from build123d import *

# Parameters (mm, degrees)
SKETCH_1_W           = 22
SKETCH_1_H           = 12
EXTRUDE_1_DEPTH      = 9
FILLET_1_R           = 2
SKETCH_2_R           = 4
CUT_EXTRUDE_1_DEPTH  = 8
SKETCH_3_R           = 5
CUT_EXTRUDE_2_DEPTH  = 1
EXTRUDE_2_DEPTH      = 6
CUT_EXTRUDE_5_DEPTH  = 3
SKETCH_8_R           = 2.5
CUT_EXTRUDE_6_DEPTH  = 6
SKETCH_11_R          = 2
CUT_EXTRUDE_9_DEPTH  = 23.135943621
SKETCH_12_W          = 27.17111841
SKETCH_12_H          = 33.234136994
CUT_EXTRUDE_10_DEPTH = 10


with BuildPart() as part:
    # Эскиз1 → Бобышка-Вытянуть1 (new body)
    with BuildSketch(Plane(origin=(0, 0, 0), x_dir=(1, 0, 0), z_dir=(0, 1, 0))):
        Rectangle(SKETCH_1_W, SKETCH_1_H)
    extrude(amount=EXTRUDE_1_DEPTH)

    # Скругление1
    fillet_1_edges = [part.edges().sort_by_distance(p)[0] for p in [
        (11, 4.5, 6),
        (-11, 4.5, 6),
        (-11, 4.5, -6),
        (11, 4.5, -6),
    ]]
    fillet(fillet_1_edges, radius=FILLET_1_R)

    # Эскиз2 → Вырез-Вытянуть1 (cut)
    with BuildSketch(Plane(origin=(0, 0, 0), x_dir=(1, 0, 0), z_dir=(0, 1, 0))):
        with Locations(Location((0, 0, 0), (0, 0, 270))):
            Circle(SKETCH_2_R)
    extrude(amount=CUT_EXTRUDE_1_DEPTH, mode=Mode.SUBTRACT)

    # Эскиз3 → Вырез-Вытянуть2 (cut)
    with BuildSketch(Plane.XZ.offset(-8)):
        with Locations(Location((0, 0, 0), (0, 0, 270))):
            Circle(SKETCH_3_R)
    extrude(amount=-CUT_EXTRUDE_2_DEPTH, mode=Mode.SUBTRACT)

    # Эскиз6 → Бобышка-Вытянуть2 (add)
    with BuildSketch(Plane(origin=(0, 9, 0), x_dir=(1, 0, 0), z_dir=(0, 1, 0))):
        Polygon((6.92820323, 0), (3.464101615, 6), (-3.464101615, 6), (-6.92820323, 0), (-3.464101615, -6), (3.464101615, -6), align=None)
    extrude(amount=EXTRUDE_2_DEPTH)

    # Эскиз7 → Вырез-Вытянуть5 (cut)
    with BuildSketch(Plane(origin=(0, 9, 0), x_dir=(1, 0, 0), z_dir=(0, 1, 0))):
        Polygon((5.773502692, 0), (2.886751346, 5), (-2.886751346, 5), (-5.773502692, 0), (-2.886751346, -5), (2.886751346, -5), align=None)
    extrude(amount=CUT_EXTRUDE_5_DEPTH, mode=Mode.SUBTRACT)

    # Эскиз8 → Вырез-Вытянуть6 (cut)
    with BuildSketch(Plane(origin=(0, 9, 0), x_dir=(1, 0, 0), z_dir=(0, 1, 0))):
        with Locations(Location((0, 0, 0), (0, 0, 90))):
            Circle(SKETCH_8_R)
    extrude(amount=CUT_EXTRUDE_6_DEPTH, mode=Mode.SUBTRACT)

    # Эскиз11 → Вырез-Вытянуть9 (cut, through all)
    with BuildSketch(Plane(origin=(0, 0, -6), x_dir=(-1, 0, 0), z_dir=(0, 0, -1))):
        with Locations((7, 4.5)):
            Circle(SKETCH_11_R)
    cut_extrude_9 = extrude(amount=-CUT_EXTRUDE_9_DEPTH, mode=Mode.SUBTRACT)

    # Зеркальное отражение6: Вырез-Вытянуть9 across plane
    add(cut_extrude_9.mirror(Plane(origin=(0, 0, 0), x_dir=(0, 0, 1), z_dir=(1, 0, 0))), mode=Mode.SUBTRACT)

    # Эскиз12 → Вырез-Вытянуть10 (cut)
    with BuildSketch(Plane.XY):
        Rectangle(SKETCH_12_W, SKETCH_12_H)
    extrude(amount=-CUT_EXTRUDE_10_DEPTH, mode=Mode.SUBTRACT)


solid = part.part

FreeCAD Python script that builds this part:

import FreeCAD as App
import Part
import Sketcher
from FreeCAD import Vector
Q = App.Units.Quantity


def edges_at(feature, points):
    """Names of the edges that pass closest to the given points."""
    edges = feature.Shape.Edges
    near = lambda p: min(range(len(edges)), key=lambda i: edges[i].distToShape(Part.Vertex(*p))[0])
    return sorted({f"Edge{near(p) + 1}" for p in points})

doc = App.newDocument("Part")
body = doc.addObject("PartDesign::Body", "Body")

# Sketch on XZ plane
sketch1 = body.newObject("Sketcher::SketchObject", "Sketch")
sketch1.AttachmentSupport = (doc.getObject("XZ_Plane"), [""])
sketch1.MapMode = "FlatFace"
sketch1.addGeometry([
    Part.LineSegment(Vector(-11, -6, 0), Vector(-11, 6, 0)),
    Part.LineSegment(Vector(-11, 6, 0), Vector(11, 6, 0)),
    Part.LineSegment(Vector(11, 6, 0), Vector(11, -6, 0)),
    Part.LineSegment(Vector(11, -6, 0), Vector(-11, -6, 0)),
], False)
sketch1.addConstraint([
    Sketcher.Constraint("Coincident", 0, 2, 1, 1),
    Sketcher.Constraint("Coincident", 1, 2, 2, 1),
    Sketcher.Constraint("Coincident", 2, 2, 3, 1),
    Sketcher.Constraint("Coincident", 3, 2, 0, 1),
    Sketcher.Constraint("Vertical", 0),
    Sketcher.Constraint("Horizontal", 1),
    Sketcher.Constraint("Vertical", 2),
    Sketcher.Constraint("Horizontal", 3),
    Sketcher.Constraint("Symmetric", 0, 2, 2, 2, -1, 1),
    Sketcher.Constraint("DistanceX", 1, 1, 1, 2, Q("22 mm")),
    Sketcher.Constraint("DistanceY", 0, 1, 0, 2, Q("12 mm")),
])
pad1 = body.newObject("PartDesign::Pad", "Pad")
pad1.Profile = sketch1
pad1.Length = 9
pad1.Reversed = True
doc.recompute()

fillet = body.newObject("PartDesign::Fillet", "Fillet")
fillet.Base = (pad1, edges_at(pad1, [
    (11, 4.5, 6),
    (-11, 4.5, 6),
    (-11, 4.5, -6),
    (11, 4.5, -6),
]))
fillet.Radius = 2

# Sketch on XZ plane
sketch2 = body.newObject("Sketcher::SketchObject", "Sketch001")
sketch2.AttachmentSupport = (doc.getObject("XZ_Plane"), [""])
sketch2.MapMode = "FlatFace"
sketch2.addGeometry(Part.Circle(Vector(0, 0, 0), Vector(0, 0, 1), 4), False)
sketch2.addConstraint([
    Sketcher.Constraint("Coincident", 0, 3, -1, 1),
    Sketcher.Constraint("Diameter", 0, Q("8 mm")),
])
pocket1 = body.newObject("PartDesign::Pocket", "Pocket")
pocket1.Profile = sketch2
pocket1.Length = 8

# Sketch on XZ plane
sketch3 = body.newObject("Sketcher::SketchObject", "Sketch002")
sketch3.AttachmentSupport = (doc.getObject("XZ_Plane"), [""])
sketch3.MapMode = "FlatFace"
sketch3.AttachmentOffset = App.Placement(Vector(0, 0, -8), App.Rotation())
sketch3.addGeometry(Part.Circle(Vector(0, 0, 0), Vector(0, 0, 1), 5), False)
sketch3.addConstraint([
    Sketcher.Constraint("Coincident", 0, 3, -1, 1),
    Sketcher.Constraint("Diameter", 0, Q("10 mm")),
])
pocket2 = body.newObject("PartDesign::Pocket", "Pocket001")
pocket2.Profile = sketch3
pocket2.Length = 1

# Sketch on XZ plane
sketch4 = body.newObject("Sketcher::SketchObject", "Sketch003")
sketch4.AttachmentSupport = (doc.getObject("XZ_Plane"), [""])
sketch4.MapMode = "FlatFace"
sketch4.AttachmentOffset = App.Placement(Vector(0, 0, -9), App.Rotation())
sketch4.addGeometry([
    Part.LineSegment(Vector(7, 0, 0), Vector(3, -6, 0)),  # 0
    Part.LineSegment(Vector(3, -6, 0), Vector(-3, -6, 0)),  # 1
    Part.LineSegment(Vector(-3, -6, 0), Vector(-7, 0, 0)),  # 2
    Part.LineSegment(Vector(-7, 0, 0), Vector(-3, 6, 0)),  # 3
    Part.LineSegment(Vector(-3, 6, 0), Vector(3, 6, 0)),  # 4
    Part.LineSegment(Vector(3, 6, 0), Vector(7, 0, 0)),  # 5
], False)
sketch4.addConstraint([
    Sketcher.Constraint("Coincident", 0, 2, 1, 1),
    Sketcher.Constraint("Coincident", 1, 2, 2, 1),
    Sketcher.Constraint("Coincident", 2, 2, 3, 1),
    Sketcher.Constraint("Coincident", 3, 2, 4, 1),
    Sketcher.Constraint("Coincident", 4, 2, 5, 1),
    Sketcher.Constraint("Coincident", 5, 2, 0, 1),
    Sketcher.Constraint("Horizontal", 1),
    Sketcher.Constraint("Horizontal", 4),
    Sketcher.Constraint("Symmetric", 0, 2, 3, 2, -1, 1),
    Sketcher.Constraint("Symmetric", 2, 2, 5, 2, -1, 1),
    Sketcher.Constraint("PointOnObject", 2, 2, -1),
    Sketcher.Constraint("Parallel", 2, 5),
    Sketcher.Constraint("Vertical", 1, 2, 3, 2),
    Sketcher.Constraint("Angle", 0, Q("-120 deg")),
    Sketcher.Constraint("DistanceY", 0, 2, -1, 1, Q("6 mm")),
    Sketcher.Constraint("DistanceX", -1, 1, 0, 2, Q("3.464102 mm")),
])
pad2 = body.newObject("PartDesign::Pad", "Pad001")
pad2.Profile = sketch4
pad2.Length = 6
pad2.Reversed = True

# Sketch on XZ plane
sketch5 = body.newObject("Sketcher::SketchObject", "Sketch004")
sketch5.AttachmentSupport = (doc.getObject("XZ_Plane"), [""])
sketch5.MapMode = "FlatFace"
sketch5.AttachmentOffset = App.Placement(Vector(0, 0, -9), App.Rotation())
sketch5.addGeometry([
    Part.LineSegment(Vector(6, 0, 0), Vector(3, -5, 0)),  # 0
    Part.LineSegment(Vector(3, -5, 0), Vector(-3, -5, 0)),  # 1
    Part.LineSegment(Vector(-3, -5, 0), Vector(-6, 0, 0)),  # 2
    Part.LineSegment(Vector(-6, 0, 0), Vector(-3, 5, 0)),  # 3
    Part.LineSegment(Vector(-3, 5, 0), Vector(3, 5, 0)),  # 4
    Part.LineSegment(Vector(3, 5, 0), Vector(6, 0, 0)),  # 5
], False)
sketch5.addConstraint([
    Sketcher.Constraint("Coincident", 0, 2, 1, 1),
    Sketcher.Constraint("Coincident", 1, 2, 2, 1),
    Sketcher.Constraint("Coincident", 2, 2, 3, 1),
    Sketcher.Constraint("Coincident", 3, 2, 4, 1),
    Sketcher.Constraint("Coincident", 4, 2, 5, 1),
    Sketcher.Constraint("Coincident", 5, 2, 0, 1),
    Sketcher.Constraint("Horizontal", 1),
    Sketcher.Constraint("Horizontal", 4),
    Sketcher.Constraint("Symmetric", 0, 2, 3, 2, -1, 1),
    Sketcher.Constraint("Symmetric", 2, 2, 5, 2, -1, 1),
    Sketcher.Constraint("PointOnObject", 2, 2, -1),
    Sketcher.Constraint("Parallel", 2, 5),
    Sketcher.Constraint("Vertical", 1, 2, 3, 2),
    Sketcher.Constraint("Angle", 0, Q("-120 deg")),
    Sketcher.Constraint("DistanceY", 0, 2, -1, 1, Q("5 mm")),
    Sketcher.Constraint("DistanceX", 1, 2, 1, 1, Q("5.773503 mm")),
])
pocket3 = body.newObject("PartDesign::Pocket", "Pocket002")
pocket3.Profile = sketch5
pocket3.Length = 3

# Sketch on XZ plane
sketch6 = body.newObject("Sketcher::SketchObject", "Sketch005")
sketch6.AttachmentSupport = (doc.getObject("XZ_Plane"), [""])
sketch6.MapMode = "FlatFace"
sketch6.AttachmentOffset = App.Placement(Vector(0, 0, -9), App.Rotation())
sketch6.addGeometry(Part.Circle(Vector(0, 0, 0), Vector(0, 0, 1), 2.5), False)
sketch6.addConstraint([
    Sketcher.Constraint("Coincident", 0, 3, -1, 1),
    Sketcher.Constraint("Diameter", 0, Q("5 mm")),
])
pocket4 = body.newObject("PartDesign::Pocket", "Pocket003")
pocket4.Profile = sketch6
pocket4.Length = 6

# Sketch on XY plane
sketch7 = body.newObject("Sketcher::SketchObject", "Sketch006")
sketch7.AttachmentSupport = (doc.getObject("XY_Plane"), [""])
sketch7.MapMode = "FlatFace"
sketch7.AttachmentOffset = App.Placement(Vector(0, 0, -6), App.Rotation())
sketch7.addGeometry(Part.Circle(Vector(-7, 4.5, 0), Vector(0, 0, 1), 2), False)
sketch7.addConstraint([
    Sketcher.Constraint("Diameter", 0, Q("4 mm")),
    Sketcher.Constraint("DistanceX", 0, 3, -1, 1, Q("7 mm")),
    Sketcher.Constraint("DistanceY", -1, 1, 0, 3, Q("4.5 mm")),
])
pocket5 = body.newObject("PartDesign::Pocket", "Pocket004")
pocket5.Profile = sketch7
pocket5.Type = "ThroughAll"
pocket5.Reversed = True
doc.recompute()

mirrored = body.newObject("PartDesign::Mirrored", "Mirrored")
mirrored.Originals = [pocket5]
mirrored.MirrorPlane = (doc.getObject("YZ_Plane"), [""])
body.Tip = mirrored

# Sketch on XY plane
sketch8 = body.newObject("Sketcher::SketchObject", "Sketch007")
sketch8.AttachmentSupport = (doc.getObject("XY_Plane"), [""])
sketch8.MapMode = "FlatFace"
sketch8.addGeometry([
    Part.LineSegment(Vector(-14, 17, 0), Vector(-14, -17, 0)),
    Part.LineSegment(Vector(-14, -17, 0), Vector(14, -17, 0)),
    Part.LineSegment(Vector(14, -17, 0), Vector(14, 17, 0)),
    Part.LineSegment(Vector(14, 17, 0), Vector(-14, 17, 0)),
], False)
sketch8.addConstraint([
    Sketcher.Constraint("Coincident", 0, 2, 1, 1),
    Sketcher.Constraint("Coincident", 1, 2, 2, 1),
    Sketcher.Constraint("Coincident", 2, 2, 3, 1),
    Sketcher.Constraint("Coincident", 3, 2, 0, 1),
    Sketcher.Constraint("Vertical", 0),
    Sketcher.Constraint("Horizontal", 1),
    Sketcher.Constraint("Vertical", 2),
    Sketcher.Constraint("Horizontal", 3),
    Sketcher.Constraint("Symmetric", 0, 2, 2, 2, -1, 1),
    Sketcher.Constraint("DistanceX", 1, 1, 1, 2, Q("27.171118 mm")),
    Sketcher.Constraint("DistanceY", 0, 2, 0, 1, Q("33.234137 mm")),
])
pocket6 = body.newObject("PartDesign::Pocket", "Pocket005")
pocket6.Profile = sketch8
pocket6.Length = 10

doc.recompute()
